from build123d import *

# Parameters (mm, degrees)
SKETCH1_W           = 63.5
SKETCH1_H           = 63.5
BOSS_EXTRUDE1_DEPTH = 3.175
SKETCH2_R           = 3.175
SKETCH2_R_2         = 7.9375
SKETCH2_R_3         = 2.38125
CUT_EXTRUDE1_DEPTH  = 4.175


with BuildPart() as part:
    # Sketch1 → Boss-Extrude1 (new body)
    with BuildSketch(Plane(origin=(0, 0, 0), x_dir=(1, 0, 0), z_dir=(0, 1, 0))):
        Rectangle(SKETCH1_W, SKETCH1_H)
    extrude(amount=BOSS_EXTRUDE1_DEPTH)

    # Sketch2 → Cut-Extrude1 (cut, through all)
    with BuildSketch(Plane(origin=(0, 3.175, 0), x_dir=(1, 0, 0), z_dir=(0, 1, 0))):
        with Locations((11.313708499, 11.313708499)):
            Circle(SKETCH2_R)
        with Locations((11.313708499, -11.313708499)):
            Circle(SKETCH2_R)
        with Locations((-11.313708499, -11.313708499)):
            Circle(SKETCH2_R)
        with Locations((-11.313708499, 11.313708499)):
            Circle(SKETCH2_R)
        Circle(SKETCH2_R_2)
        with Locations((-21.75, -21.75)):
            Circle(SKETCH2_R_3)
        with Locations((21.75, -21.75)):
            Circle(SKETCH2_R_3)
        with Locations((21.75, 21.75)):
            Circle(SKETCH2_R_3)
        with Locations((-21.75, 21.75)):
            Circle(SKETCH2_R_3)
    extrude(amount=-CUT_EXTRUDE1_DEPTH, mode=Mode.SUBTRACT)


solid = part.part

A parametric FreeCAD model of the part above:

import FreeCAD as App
import Part
import Sketcher
from FreeCAD import Vector
Q = App.Units.Quantity


def add_polygon(sketch, points):
    """Adds a closed chain of lines whose ends are joined by coincident constraints."""
    first, n = sketch.GeometryCount, len(points)
    for a, b in zip(points, points[1:] + points[:1]):
        sketch.addGeometry(Part.LineSegment(App.Vector(*a, 0), App.Vector(*b, 0)), False)
    for i in range(n):
        sketch.addConstraint(Sketcher.Constraint("Coincident", first + i, 2, first + (i + 1) % n, 1))

doc = App.newDocument("Part")
body = doc.addObject("PartDesign::Body", "Body")

sketch1 = body.newObject("Sketcher::SketchObject", "Sketch")
sketch1.AttachmentSupport = (doc.getObject("XZ_Plane"), [""])
sketch1.MapMode = "FlatFace"
add_polygon(sketch1, [(-32, -32), (-32, 32), (32, 32), (32, -32)])
sketch1.addConstraint([
    Sketcher.Constraint("Vertical", 0),
    Sketcher.Constraint("Horizontal", 1),
    Sketcher.Constraint("Vertical", 2),
    Sketcher.Constraint("Horizontal", 3),
    Sketcher.Constraint("Symmetric", 0, 2, 2, 2, -1, 1),
    Sketcher.Constraint("Equal", 3, 0),
    Sketcher.Constraint("DistanceX", 1, 1, 1, 2, Q("2.5 in")),
])
pad1 = body.newObject("PartDesign::Pad", "Pad")
pad1.Profile = sketch1
pad1.Length = Q("0.125 in")
pad1.Reversed = True

sketch2 = body.newObject("Sketcher::SketchObject", "Sketch001")
sketch2.AttachmentSupport = (doc.getObject("XZ_Plane"), [""])
sketch2.MapMode = "FlatFace"
sketch2.AttachmentOffset = App.Placement(Vector(0, 0, -0.125 * 25.4), App.Rotation())
sketch2.addGeometry([
    Part.Circle(Vector(11.3, -11.3, 0), Vector(0, 0, 1), 3.2),
    Part.Circle(Vector(11.3, 11.3, 0), Vector(0, 0, 1), 3.2),
    Part.Circle(Vector(-11.3, 11.3, 0), Vector(0, 0, 1), 3.2),
    Part.Circle(Vector(-11.3, -11.3, 0), Vector(0, 0, 1), 3.2),
    Part.Circle(Vector(0, 0, 0), Vector(0, 0, 1), 7.9),
    Part.Circle(Vector(-21.8, 21.8, 0), Vector(0, 0, 1), 2.4),
    Part.Circle(Vector(21.8, 21.8, 0), Vector(0, 0, 1), 2.4),
    Part.Circle(Vector(21.8, -21.8, 0), Vector(0, 0, 1), 2.4),
    Part.Circle(Vector(-21.8, -21.8, 0), Vector(0, 0, 1), 2.4),
], False)
sketch2.addConstraint([
    Sketcher.Constraint("Coincident", 4, 3, -1, 1),
    Sketcher.Constraint("Equal", 0, 1),
    Sketcher.Constraint("Equal", 1, 2),
    Sketcher.Constraint("Equal", 2, 3),
    Sketcher.Constraint("Equal", 5, 6),
    Sketcher.Constraint("Equal", 6, 7),
    Sketcher.Constraint("Equal", 7, 8),
    Sketcher.Constraint("Symmetric", 0, 3, 2, 3, -1, 1),
    Sketcher.Constraint("Symmetric", 1, 3, 3, 3, -1, 1),
    Sketcher.Constraint("Symmetric", 5, 3, 7, 3, -1, 1),
    Sketcher.Constraint("Symmetric", 6, 3, 8, 3, -1, 1),
    Sketcher.Constraint("Symmetric", 1, 3, 2, 3, -2),
    Sketcher.Constraint("Symmetric", 5, 3, 6, 3, -2),
    Sketcher.Constraint("Diameter", 0, Q("0.25 in")),
    Sketcher.Constraint("Diameter", 4, Q("0.625 in")),
    Sketcher.Constraint("Diameter", 5, Q("0.1875 in")),
    Sketcher.Constraint("DistanceX", 5, 3, -1, 1, 21.75),
    Sketcher.Constraint("DistanceY", -1, 1, 5, 3, 21.75),
    Sketcher.Constraint("DistanceX", -1, 1, 0, 3, 11.313708),
    Sketcher.Constraint("DistanceY", 0, 3, -1, 1, 11.313708),
])
pocket1 = body.newObject("PartDesign::Pocket", "Pocket")
pocket1.Profile = sketch2
pocket1.Type = "ThroughAll"
pocket1.Reversed = True

doc.recompute()
